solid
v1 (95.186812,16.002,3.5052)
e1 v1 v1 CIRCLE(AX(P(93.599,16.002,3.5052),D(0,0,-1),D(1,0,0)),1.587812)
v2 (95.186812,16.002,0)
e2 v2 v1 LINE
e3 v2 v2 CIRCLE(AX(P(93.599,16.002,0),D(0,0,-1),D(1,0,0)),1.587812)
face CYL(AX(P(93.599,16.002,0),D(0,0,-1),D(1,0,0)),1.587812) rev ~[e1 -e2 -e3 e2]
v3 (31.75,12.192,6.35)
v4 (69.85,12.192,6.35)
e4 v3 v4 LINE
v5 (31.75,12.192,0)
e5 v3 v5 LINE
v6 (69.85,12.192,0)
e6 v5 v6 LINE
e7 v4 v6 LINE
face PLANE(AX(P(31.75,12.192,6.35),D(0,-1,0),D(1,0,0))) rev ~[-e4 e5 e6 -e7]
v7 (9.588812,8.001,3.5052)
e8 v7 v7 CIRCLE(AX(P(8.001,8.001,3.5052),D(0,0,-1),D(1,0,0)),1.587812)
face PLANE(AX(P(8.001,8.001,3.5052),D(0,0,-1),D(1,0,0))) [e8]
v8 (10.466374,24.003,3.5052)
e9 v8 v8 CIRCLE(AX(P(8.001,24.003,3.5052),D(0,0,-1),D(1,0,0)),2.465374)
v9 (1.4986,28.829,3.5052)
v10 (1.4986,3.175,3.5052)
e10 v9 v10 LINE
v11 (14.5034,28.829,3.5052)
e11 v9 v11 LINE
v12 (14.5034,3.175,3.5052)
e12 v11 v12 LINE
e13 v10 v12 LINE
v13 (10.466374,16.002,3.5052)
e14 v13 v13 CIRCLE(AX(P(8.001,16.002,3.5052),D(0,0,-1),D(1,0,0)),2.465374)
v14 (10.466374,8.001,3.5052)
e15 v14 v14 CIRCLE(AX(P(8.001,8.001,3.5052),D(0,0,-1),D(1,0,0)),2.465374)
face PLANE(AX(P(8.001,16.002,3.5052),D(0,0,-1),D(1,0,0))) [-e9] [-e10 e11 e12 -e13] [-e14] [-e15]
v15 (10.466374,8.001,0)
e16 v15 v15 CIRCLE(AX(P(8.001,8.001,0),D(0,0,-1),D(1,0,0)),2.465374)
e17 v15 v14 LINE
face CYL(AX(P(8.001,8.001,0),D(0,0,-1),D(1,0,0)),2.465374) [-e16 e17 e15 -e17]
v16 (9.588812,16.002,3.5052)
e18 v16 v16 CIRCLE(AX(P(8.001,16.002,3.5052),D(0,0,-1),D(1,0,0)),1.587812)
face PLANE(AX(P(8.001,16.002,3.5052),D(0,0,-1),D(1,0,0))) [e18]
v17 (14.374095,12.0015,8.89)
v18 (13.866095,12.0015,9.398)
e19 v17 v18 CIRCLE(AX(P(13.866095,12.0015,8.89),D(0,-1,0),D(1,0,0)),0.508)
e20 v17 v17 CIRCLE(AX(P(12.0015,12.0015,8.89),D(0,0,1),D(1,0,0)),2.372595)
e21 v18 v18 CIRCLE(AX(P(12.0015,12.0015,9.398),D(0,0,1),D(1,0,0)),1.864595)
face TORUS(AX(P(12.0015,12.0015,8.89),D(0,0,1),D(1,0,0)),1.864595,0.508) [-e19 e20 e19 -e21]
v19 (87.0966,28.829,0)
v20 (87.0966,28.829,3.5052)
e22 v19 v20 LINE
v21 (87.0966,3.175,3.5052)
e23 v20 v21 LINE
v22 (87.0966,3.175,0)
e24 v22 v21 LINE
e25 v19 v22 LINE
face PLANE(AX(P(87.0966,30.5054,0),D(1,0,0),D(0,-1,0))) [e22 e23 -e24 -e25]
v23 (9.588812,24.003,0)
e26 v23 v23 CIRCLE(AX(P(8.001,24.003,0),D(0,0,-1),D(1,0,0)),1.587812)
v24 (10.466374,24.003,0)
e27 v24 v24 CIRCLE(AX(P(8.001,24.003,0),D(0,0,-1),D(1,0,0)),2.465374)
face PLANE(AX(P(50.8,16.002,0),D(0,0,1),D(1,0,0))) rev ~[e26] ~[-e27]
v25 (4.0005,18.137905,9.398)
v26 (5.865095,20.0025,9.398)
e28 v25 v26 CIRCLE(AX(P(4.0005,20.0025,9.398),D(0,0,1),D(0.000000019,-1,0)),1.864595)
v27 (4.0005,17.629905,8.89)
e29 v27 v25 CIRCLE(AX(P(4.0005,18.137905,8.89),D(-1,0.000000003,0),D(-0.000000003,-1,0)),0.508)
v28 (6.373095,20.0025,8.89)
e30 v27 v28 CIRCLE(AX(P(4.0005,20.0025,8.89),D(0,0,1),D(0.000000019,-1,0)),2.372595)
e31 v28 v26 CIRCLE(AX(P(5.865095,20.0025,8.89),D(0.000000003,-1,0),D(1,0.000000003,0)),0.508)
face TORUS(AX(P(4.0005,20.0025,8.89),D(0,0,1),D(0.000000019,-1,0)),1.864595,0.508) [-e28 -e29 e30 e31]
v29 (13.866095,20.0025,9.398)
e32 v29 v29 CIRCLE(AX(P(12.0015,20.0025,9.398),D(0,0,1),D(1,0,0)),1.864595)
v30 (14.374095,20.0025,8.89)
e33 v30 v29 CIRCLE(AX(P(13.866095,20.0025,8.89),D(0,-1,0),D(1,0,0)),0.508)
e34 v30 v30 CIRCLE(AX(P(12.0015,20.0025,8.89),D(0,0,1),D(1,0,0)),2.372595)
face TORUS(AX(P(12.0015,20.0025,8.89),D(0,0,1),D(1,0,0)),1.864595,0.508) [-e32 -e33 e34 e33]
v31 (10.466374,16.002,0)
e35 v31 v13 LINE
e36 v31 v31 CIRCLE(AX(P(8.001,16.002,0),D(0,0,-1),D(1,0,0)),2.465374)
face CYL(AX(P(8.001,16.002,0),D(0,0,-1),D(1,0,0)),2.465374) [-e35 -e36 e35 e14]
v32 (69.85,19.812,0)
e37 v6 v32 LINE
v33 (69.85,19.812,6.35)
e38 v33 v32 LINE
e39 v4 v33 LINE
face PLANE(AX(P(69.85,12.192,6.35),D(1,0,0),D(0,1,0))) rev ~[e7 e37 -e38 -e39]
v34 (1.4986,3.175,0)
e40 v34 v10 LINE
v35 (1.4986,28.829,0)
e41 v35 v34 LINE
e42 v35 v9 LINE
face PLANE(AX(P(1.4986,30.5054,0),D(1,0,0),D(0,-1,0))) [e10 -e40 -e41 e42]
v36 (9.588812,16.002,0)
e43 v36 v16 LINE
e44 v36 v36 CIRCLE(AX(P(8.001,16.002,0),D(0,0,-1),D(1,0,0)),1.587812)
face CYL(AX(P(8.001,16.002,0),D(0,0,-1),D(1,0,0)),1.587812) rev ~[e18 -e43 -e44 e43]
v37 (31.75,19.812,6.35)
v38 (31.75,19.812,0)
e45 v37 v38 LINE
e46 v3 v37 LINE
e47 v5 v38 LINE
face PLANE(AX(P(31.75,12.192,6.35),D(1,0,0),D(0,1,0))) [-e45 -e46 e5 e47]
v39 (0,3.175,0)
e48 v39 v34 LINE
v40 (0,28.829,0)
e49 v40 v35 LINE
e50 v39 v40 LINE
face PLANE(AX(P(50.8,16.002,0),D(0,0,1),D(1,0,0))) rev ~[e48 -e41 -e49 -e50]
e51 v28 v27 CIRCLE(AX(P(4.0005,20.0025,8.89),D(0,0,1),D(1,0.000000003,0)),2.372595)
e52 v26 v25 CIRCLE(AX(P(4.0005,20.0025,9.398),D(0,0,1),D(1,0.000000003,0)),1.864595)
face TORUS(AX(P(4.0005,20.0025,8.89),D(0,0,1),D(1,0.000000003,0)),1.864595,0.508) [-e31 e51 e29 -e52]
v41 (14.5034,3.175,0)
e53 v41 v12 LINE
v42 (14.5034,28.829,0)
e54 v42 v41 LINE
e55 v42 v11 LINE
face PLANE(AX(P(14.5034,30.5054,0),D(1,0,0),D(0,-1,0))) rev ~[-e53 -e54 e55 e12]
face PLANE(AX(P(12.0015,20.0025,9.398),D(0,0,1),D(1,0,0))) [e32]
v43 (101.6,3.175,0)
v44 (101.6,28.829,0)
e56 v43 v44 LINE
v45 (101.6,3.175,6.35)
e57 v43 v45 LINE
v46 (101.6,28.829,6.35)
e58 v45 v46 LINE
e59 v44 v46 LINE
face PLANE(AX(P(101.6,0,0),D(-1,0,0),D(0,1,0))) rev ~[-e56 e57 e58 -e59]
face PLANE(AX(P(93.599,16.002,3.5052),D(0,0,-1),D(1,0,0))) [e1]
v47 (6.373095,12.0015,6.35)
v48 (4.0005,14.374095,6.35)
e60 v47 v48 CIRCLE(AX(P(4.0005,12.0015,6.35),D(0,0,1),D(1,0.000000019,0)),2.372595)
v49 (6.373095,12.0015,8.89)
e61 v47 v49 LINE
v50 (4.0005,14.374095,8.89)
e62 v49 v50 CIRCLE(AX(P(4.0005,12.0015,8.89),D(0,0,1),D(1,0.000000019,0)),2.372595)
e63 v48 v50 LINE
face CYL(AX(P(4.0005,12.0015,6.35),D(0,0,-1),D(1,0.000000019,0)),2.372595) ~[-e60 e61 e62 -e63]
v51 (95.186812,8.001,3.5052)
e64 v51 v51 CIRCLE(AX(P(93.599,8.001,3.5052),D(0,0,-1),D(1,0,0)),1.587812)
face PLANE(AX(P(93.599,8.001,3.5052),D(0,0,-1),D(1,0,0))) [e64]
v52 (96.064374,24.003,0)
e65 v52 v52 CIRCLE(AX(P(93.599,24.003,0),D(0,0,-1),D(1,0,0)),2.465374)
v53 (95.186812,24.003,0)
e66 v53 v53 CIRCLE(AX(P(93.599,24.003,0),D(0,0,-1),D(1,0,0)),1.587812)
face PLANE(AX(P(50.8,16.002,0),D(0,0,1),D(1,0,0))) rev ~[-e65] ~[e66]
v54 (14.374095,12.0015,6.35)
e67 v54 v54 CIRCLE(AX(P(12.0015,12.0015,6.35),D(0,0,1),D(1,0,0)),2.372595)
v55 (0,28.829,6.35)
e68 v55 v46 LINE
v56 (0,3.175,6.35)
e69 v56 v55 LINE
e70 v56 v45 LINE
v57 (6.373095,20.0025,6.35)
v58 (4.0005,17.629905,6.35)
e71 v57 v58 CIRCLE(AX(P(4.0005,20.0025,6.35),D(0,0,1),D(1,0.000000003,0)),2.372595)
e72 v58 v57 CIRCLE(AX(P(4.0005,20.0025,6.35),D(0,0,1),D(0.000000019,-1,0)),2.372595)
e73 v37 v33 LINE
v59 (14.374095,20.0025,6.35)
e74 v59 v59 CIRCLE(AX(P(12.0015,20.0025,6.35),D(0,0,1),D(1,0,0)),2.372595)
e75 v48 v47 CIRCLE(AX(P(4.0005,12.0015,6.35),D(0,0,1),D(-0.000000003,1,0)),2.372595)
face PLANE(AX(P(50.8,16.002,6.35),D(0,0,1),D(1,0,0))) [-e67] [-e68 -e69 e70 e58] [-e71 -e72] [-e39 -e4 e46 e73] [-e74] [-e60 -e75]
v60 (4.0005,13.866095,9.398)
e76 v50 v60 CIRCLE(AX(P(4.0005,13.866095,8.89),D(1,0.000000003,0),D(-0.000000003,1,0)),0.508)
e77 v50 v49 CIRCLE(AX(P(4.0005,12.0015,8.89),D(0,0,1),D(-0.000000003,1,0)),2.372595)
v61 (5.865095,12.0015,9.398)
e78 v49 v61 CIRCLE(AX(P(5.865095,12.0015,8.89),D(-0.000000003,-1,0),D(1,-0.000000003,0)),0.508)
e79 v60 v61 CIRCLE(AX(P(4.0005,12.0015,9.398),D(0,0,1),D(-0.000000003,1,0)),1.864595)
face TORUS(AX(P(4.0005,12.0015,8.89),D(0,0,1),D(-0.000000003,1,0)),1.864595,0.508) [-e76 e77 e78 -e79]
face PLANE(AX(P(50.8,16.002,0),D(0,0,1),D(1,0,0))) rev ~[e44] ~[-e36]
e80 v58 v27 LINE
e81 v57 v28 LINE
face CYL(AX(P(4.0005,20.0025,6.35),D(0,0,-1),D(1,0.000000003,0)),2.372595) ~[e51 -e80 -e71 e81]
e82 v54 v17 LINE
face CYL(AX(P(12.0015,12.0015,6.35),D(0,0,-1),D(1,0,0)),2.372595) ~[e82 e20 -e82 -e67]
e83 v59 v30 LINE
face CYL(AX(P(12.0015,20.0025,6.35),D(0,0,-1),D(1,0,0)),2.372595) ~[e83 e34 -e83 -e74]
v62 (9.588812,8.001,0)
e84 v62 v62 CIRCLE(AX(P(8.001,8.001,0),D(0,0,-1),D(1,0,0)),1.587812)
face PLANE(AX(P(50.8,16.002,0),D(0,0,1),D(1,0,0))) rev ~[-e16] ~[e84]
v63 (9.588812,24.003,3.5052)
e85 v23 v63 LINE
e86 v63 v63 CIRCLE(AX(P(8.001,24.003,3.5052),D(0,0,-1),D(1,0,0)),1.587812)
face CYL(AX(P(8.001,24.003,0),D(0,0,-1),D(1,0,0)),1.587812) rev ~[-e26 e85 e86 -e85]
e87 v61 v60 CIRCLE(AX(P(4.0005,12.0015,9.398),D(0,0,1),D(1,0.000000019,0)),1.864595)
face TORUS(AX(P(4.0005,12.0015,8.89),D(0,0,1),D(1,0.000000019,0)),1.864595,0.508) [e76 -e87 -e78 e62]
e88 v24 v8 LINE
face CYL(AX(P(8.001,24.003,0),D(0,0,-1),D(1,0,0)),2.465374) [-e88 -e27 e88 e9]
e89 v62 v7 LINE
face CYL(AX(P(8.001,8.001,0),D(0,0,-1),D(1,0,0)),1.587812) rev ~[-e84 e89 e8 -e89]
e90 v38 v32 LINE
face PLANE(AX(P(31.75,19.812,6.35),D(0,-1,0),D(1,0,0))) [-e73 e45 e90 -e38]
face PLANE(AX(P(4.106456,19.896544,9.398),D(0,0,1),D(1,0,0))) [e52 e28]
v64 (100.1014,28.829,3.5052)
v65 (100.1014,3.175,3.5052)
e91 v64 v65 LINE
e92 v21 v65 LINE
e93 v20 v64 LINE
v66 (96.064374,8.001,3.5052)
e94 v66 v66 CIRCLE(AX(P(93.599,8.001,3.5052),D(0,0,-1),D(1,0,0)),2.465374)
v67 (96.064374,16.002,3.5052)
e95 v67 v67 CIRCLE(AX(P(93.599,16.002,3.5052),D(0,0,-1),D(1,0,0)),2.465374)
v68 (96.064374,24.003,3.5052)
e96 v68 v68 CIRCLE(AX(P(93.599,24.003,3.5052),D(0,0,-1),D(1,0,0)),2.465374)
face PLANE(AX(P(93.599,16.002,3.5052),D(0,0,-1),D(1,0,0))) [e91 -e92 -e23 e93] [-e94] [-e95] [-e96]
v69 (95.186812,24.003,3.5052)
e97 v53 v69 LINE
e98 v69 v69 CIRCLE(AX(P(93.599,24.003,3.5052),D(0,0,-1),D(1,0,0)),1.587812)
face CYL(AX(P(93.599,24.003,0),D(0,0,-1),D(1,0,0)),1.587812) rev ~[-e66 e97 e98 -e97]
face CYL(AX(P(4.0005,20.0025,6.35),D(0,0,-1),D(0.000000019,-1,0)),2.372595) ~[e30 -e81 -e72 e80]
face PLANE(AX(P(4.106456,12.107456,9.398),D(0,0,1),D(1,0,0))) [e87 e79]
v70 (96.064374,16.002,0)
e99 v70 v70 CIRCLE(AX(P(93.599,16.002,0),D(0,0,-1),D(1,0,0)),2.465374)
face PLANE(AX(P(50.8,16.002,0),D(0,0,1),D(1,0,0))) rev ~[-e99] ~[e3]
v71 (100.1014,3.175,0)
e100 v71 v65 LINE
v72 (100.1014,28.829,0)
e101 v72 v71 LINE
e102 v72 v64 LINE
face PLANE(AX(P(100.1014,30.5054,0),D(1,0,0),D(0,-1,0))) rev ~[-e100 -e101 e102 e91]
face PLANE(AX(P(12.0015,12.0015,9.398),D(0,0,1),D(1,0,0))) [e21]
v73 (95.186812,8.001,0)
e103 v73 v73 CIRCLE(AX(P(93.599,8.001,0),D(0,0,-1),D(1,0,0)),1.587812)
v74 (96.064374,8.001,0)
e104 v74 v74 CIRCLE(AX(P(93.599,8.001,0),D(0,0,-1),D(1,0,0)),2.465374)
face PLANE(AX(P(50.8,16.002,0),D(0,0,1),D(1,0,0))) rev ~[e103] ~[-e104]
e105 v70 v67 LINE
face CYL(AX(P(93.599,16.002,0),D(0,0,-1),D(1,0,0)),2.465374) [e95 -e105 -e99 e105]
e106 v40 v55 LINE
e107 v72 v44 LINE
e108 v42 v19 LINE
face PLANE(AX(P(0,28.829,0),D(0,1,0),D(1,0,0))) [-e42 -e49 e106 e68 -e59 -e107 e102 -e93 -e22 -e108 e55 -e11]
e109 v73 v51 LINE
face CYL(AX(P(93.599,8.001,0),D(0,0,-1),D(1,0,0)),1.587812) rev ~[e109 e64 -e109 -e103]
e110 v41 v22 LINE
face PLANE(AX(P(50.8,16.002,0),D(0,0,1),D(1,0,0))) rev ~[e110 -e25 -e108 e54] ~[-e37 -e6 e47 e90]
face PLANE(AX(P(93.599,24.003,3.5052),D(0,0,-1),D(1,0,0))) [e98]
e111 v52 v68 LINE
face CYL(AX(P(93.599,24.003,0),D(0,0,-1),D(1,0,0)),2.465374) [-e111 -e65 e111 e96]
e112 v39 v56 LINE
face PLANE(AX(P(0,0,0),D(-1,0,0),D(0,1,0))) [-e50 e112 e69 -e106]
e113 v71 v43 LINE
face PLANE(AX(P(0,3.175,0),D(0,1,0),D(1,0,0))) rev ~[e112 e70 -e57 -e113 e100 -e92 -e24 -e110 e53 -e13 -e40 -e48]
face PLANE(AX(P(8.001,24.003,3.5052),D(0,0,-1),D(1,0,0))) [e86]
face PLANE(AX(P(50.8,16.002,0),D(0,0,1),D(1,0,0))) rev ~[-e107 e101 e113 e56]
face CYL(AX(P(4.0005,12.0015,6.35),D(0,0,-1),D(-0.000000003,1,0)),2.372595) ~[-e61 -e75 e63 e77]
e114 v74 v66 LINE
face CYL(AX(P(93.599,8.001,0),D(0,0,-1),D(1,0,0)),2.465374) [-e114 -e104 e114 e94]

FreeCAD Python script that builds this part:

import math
import FreeCAD as App
import Part
import Sketcher

V = App.Vector
Q = App.Units.Quantity


def edges_at(feature, points):
    """Names of the edges that pass closest to the given points."""
    edges = feature.Shape.Edges
    near = lambda p: min(range(len(edges)), key=lambda i: edges[i].distToShape(Part.Vertex(*p))[0])
    return sorted({f"Edge{near(p) + 1}" for p in points})

doc = App.newDocument("Part")
body = doc.addObject("PartDesign::Body", "Body")

sketch1 = body.newObject("Sketcher::SketchObject", "Sketch")
sketch1.AttachmentSupport = (doc.getObject("XY_Plane"), [""])
sketch1.MapMode = "FlatFace"
sketch1.addGeometry([
    Part.LineSegment(V(0, 32, 0), V(0, 0, 0)),
    Part.LineSegment(V(0, 0, 0), V(102, 0, 0)),
    Part.LineSegment(V(102, 0, 0), V(102, 32, 0)),
    Part.LineSegment(V(102, 32, 0), V(0, 32, 0)),
], False)
sketch1.addConstraint([
    Sketcher.Constraint("Coincident", 0, 2, 1, 1),
    Sketcher.Constraint("Coincident", 1, 2, 2, 1),
    Sketcher.Constraint("Coincident", 2, 2, 3, 1),
    Sketcher.Constraint("Coincident", 3, 2, 0, 1),
    Sketcher.Constraint("Vertical", 0),
    Sketcher.Constraint("Horizontal", 1),
    Sketcher.Constraint("Vertical", 2),
    Sketcher.Constraint("Horizontal", 3),
    Sketcher.Constraint("Coincident", 0, 2, -1, 1),
    Sketcher.Constraint("DistanceX", 1, 1, 1, 2, Q("4 in")),
    Sketcher.Constraint("DistanceY", 0, 2, 0, 1, Q("1.26 in")),
])
pad1 = body.newObject("PartDesign::Pad", "Pad")
pad1.Profile = sketch1
pad1.Length = Q("0.25 in")

sketch2 = body.newObject("Sketcher::SketchObject", "Sketch001")
sketch2.AttachmentSupport = (doc.getObject("XY_Plane"), [""])
sketch2.MapMode = "FlatFace"
sketch2.AttachmentOffset = App.Placement(V(0, 0, 0.25 * 25.4), App.Rotation())
sketch2.addGeometry([
    Part.Circle(V(12, 20, 0), V(0, 0, 1), 2.4),
    Part.Circle(V(12, 12, 0), V(0, 0, 1), 2.4),
    Part.ArcOfCircle(Part.Circle(V(4, 12, 0), V(0, 0, 1), 2.4), math.radians(0), math.radians(90)),
    Part.ArcOfCircle(Part.Circle(V(4, 12, 0), V(0, 0, 1), 2.4), math.radians(90), math.radians(360)),
    Part.ArcOfCircle(Part.Circle(V(4, 20, 0), V(0, 0, 1), 2.4), math.radians(-90), math.radians(0)),
    Part.ArcOfCircle(Part.Circle(V(4, 20, 0), V(0, 0, 1), 2.4), math.radians(0), math.radians(270)),
], False)
sketch2.addConstraint([
    Sketcher.Constraint("Tangent", 2, 1, 3, 2),
    Sketcher.Constraint("Coincident", 3, 1, 2, 2),
    Sketcher.Constraint("Tangent", 4, 1, 5, 2),
    Sketcher.Constraint("Coincident", 5, 1, 4, 2),
    Sketcher.Constraint("Equal", 0, 1),
    Sketcher.Constraint("Equal", 1, 2),
    Sketcher.Constraint("Equal", 3, 4),
    Sketcher.Constraint("Horizontal", 1, 3, 2, 3),
    Sketcher.Constraint("Horizontal", 0, 3, 4, 3),
    Sketcher.Constraint("Horizontal", 3, 3, 2, 1),
    Sketcher.Constraint("Horizontal", 4, 3, 5, 1),
    Sketcher.Constraint("Vertical", 0, 3, 1, 3),
    Sketcher.Constraint("Vertical", 3, 3, 4, 3),
    Sketcher.Constraint("Vertical", 5, 3, 3, 1),
    Sketcher.Constraint("Vertical", 3, 1, 4, 1),
    Sketcher.Constraint("Diameter", 0, Q("4.74519 mm")),
    Sketcher.Constraint("DistanceY", 1, 3, 0, 3, Q("0.315 in")),
    Sketcher.Constraint("DistanceX", 2, 3, 1, 3, Q("0.315 in")),
    Sketcher.Constraint("DistanceX", -1, 1, 0, 3, Q("0.4725 in")),
    Sketcher.Constraint("DistanceY", -1, 1, 0, 3, Q("0.7875 in")),
])
pad2 = body.newObject("PartDesign::Pad", "Pad001")
pad2.Profile = sketch2
pad2.Length = Q("0.12 in")
doc.recompute()

fillet = body.newObject("PartDesign::Fillet", "Fillet")
fillet.Base = (pad2, edges_at(pad2, [
    (9.629, 20.003, 9.398),
    (2.323, 21.68, 9.398),
    (2.323, 10.324, 9.398),
    (9.629, 12.002, 9.398),
]))
fillet.Radius = Q("0.02 in")

sketch3 = body.newObject("Sketcher::SketchObject", "Sketch002")
sketch3.AttachmentSupport = (doc.getObject("XY_Plane"), [""])
sketch3.MapMode = "FlatFace"
sketch3.addGeometry([
    Part.LineSegment(V(1.5, 1.5, 0), V(1.5, 30.5, 0)),
    Part.LineSegment(V(1.5, 30.5, 0), V(14.5, 30.5, 0)),
    Part.LineSegment(V(14.5, 30.5, 0), V(14.5, 1.5, 0)),
    Part.LineSegment(V(14.5, 1.5, 0), V(1.5, 1.5, 0)),
    Part.Circle(V(8, 24, 0), V(0, 0, 1), 2.5),
    Part.Circle(V(8, 16, 0), V(0, 0, 1), 2.5),
    Part.Circle(V(8, 8, 0), V(0, 0, 1), 2.5),
    Part.LineSegment(V(87.1, 1.5, 0), V(87.1, 30.5, 0)),
    Part.LineSegment(V(87.1, 30.5, 0), V(100.1, 30.5, 0)),
    Part.LineSegment(V(100.1, 30.5, 0), V(100.1, 1.5, 0)),
    Part.LineSegment(V(100.1, 1.5, 0), V(87.1, 1.5, 0)),
    Part.Circle(V(93.6, 24, 0), V(0, 0, 1), 2.5),
    Part.Circle(V(93.6, 16, 0), V(0, 0, 1), 2.5),
    Part.Circle(V(93.6, 8, 0), V(0, 0, 1), 2.5),
    Part.Circle(V(8, 8, 0), V(0, 0, 1), 1.6),
    Part.Circle(V(8, 16, 0), V(0, 0, 1), 1.6),
    Part.Circle(V(8, 24, 0), V(0, 0, 1), 1.6),
    Part.Circle(V(93.6, 8, 0), V(0, 0, 1), 1.6),
    Part.Circle(V(93.6, 16, 0), V(0, 0, 1), 1.6),
    Part.Circle(V(93.6, 24, 0), V(0, 0, 1), 1.6),
], False)
sketch3.addConstraint([
    Sketcher.Constraint("Coincident", 0, 2, 1, 1),
    Sketcher.Constraint("Coincident", 1, 2, 2, 1),
    Sketcher.Constraint("Coincident", 2, 2, 3, 1),
    Sketcher.Constraint("Coincident", 3, 2, 0, 1),
    Sketcher.Constraint("Coincident", 7, 2, 8, 1),
    Sketcher.Constraint("Coincident", 8, 2, 9, 1),
    Sketcher.Constraint("Coincident", 9, 2, 10, 1),
    Sketcher.Constraint("Coincident", 10, 2, 7, 1),
    Sketcher.Constraint("Vertical", 0),
    Sketcher.Constraint("Horizontal", 1),
    Sketcher.Constraint("Vertical", 2),
    Sketcher.Constraint("Horizontal", 3),
    Sketcher.Constraint("Vertical", 7),
    Sketcher.Constraint("Horizontal", 8),
    Sketcher.Constraint("Vertical", 9),
    Sketcher.Constraint("Horizontal", 10),
    Sketcher.Constraint("Coincident", 14, 3, 6, 3),
    Sketcher.Constraint("Coincident", 15, 3, 5, 3),
    Sketcher.Constraint("Coincident", 16, 3, 4, 3),
    Sketcher.Constraint("Coincident", 17, 3, 13, 3),
    Sketcher.Constraint("Coincident", 18, 3, 12, 3),
    Sketcher.Constraint("Coincident", 19, 3, 11, 3),
    Sketcher.Constraint("Equal", 4, 5),
    Sketcher.Constraint("Equal", 5, 6),
    Sketcher.Constraint("Equal", 6, 11),
    Sketcher.Constraint("Equal", 11, 12),
    Sketcher.Constraint("Equal", 12, 13),
    Sketcher.Constraint("Equal", 14, 15),
    Sketcher.Constraint("Equal", 15, 16),
    Sketcher.Constraint("Equal", 16, 17),
    Sketcher.Constraint("Equal", 17, 18),
    Sketcher.Constraint("Equal", 18, 19),
    Sketcher.Constraint("Horizontal", 4, 3, 11, 3),
    Sketcher.Constraint("Horizontal", 5, 3, 12, 3),
    Sketcher.Constraint("Horizontal", 6, 3, 13, 3),
    Sketcher.Constraint("Horizontal", 1, 2, 7, 2),
    Sketcher.Constraint("Horizontal", 3, 2, 9, 2),
    Sketcher.Constraint("Vertical", 4, 3, 5, 3),
    Sketcher.Constraint("Vertical", 5, 3, 6, 3),
    Sketcher.Constraint("Vertical", 11, 3, 12, 3),
    Sketcher.Constraint("Vertical", 12, 3, 13, 3),
    Sketcher.Constraint("Equal", 3, 8),
    Sketcher.Constraint("DistanceX", 1, 1, 1, 2, Q("0.512 in")),
    Sketcher.Constraint("DistanceY", 0, 1, 0, 2, Q("1.142 in")),
    Sketcher.Constraint("DistanceY", -1, 1, 5, 3, Q("0.63 in")),
    Sketcher.Constraint("DistanceY", 6, 3, 4, 3, Q("0.63 in")),
    Sketcher.Constraint("DistanceX", 4, 3, 11, 3, Q("3.37 in")),
    Sketcher.Constraint("Diameter", 4, Q("4.930748 mm")),
    Sketcher.Constraint("DistanceX", -1, 1, 4, 3, Q("0.315 in")),
    Sketcher.Constraint("DistanceY", -1, 1, 4, 3, Q("0.945 in")),
    Sketcher.Constraint("DistanceX", -1, 1, 0, 2, Q("0.059 in")),
    Sketcher.Constraint("DistanceY", -1, 1, 0, 2, Q("1.201 in")),
    Sketcher.Constraint("DistanceX", -1, 1, 7, 2, Q("3.429 in")),
    Sketcher.Constraint("Diameter", 14, Q("3.175624 mm")),
])
pocket1 = body.newObject("PartDesign::Pocket", "Pocket")
pocket1.Profile = sketch3
pocket1.Length = Q("0.138 in")
pocket1.Reversed = True

sketch4 = body.newObject("Sketcher::SketchObject", "Sketch003")
sketch4.AttachmentSupport = (doc.getObject("XY_Plane"), [""])
sketch4.MapMode = "FlatFace"
sketch4.addGeometry([
    Part.LineSegment(V(0, 28.8, 0), V(0, 32, 0)),
    Part.LineSegment(V(0, 32, 0), V(101.6, 32, 0)),
    Part.LineSegment(V(101.6, 32, 0), V(101.6, 28.8, 0)),
    Part.LineSegment(V(101.6, 28.8, 0), V(0, 28.8, 0)),
    Part.LineSegment(V(0, 0, 0), V(0, 3.2, 0)),
    Part.LineSegment(V(0, 3.2, 0), V(101.6, 3.2, 0)),
    Part.LineSegment(V(101.6, 3.2, 0), V(101.6, 0, 0)),
    Part.LineSegment(V(101.6, 0, 0), V(0, 0, 0)),
], False)
sketch4.addConstraint([
    Sketcher.Constraint("Coincident", 0, 2, 1, 1),
    Sketcher.Constraint("Coincident", 1, 2, 2, 1),
    Sketcher.Constraint("Coincident", 2, 2, 3, 1),
    Sketcher.Constraint("Coincident", 3, 2, 0, 1),
    Sketcher.Constraint("Coincident", 4, 2, 5, 1),
    Sketcher.Constraint("Coincident", 5, 2, 6, 1),
    Sketcher.Constraint("Coincident", 6, 2, 7, 1),
    Sketcher.Constraint("Coincident", 7, 2, 4, 1),
    Sketcher.Constraint("Vertical", 0),
    Sketcher.Constraint("Horizontal", 1),
    Sketcher.Constraint("Vertical", 2),
    Sketcher.Constraint("Horizontal", 3),
    Sketcher.Constraint("Vertical", 4),
    Sketcher.Constraint("Horizontal", 5),
    Sketcher.Constraint("Vertical", 6),
    Sketcher.Constraint("Horizontal", 7),
    Sketcher.Constraint("Coincident", 7, 2, -1, 1),
    Sketcher.Constraint("PointOnObject", 0, 2, -2),
    Sketcher.Constraint("Vertical", 2, 2, 5, 2),
    Sketcher.Constraint("Equal", 2, 4),
    Sketcher.Constraint("DistanceX", 1, 1, 1, 2, Q("4 in")),
    Sketcher.Constraint("DistanceY", 0, 1, 0, 2, Q("0.125 in")),
    Sketcher.Constraint("DistanceY", -1, 1, 0, 2, Q("1.26 in")),
])
pocket2 = body.newObject("PartDesign::Pocket", "Pocket001")
pocket2.Profile = sketch4
pocket2.Type = "ThroughAll"
pocket2.Reversed = True

sketch5 = body.newObject("Sketcher::SketchObject", "Sketch004")
sketch5.AttachmentSupport = (doc.getObject("XY_Plane"), [""])
sketch5.MapMode = "FlatFace"
sketch5.AttachmentOffset = App.Placement(V(0, 0, 0.25 * 25.4), App.Rotation())
sketch5.addGeometry([
    Part.LineSegment(V(32, 20, 0), V(32, 12, 0)),
    Part.LineSegment(V(32, 12, 0), V(70, 12, 0)),
    Part.LineSegment(V(70, 12, 0), V(70, 20, 0)),
    Part.LineSegment(V(70, 20, 0), V(32, 20, 0)),
], False)
sketch5.addConstraint([
    Sketcher.Constraint("Coincident", 0, 2, 1, 1),
    Sketcher.Constraint("Coincident", 1, 2, 2, 1),
    Sketcher.Constraint("Coincident", 2, 2, 3, 1),
    Sketcher.Constraint("Coincident", 3, 2, 0, 1),
    Sketcher.Constraint("Vertical", 0),
    Sketcher.Constraint("Horizontal", 1),
    Sketcher.Constraint("Vertical", 2),
    Sketcher.Constraint("Horizontal", 3),
    Sketcher.Constraint("DistanceX", 1, 1, 1, 2, Q("1.5 in")),
    Sketcher.Constraint("DistanceY", 0, 2, 0, 1, Q("0.3 in")),
    Sketcher.Constraint("DistanceX", -1, 1, 0, 2, Q("1.25 in")),
    Sketcher.Constraint("DistanceY", -1, 1, 0, 2, Q("0.48 in")),
])
pocket3 = body.newObject("PartDesign::Pocket", "Pocket002")
pocket3.Profile = sketch5
pocket3.Type = "ThroughAll"

doc.recompute()
